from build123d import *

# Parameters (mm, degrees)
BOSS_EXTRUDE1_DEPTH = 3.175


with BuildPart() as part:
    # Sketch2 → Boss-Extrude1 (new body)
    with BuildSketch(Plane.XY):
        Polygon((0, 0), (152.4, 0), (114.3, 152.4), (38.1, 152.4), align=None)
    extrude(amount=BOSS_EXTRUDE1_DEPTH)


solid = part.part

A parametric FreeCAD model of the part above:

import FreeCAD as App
import Part
import Sketcher
Q = App.Units.Quantity

doc = App.newDocument("Part")
params = doc.addObject("Spreadsheet::Sheet", "Params")
for row, (alias, value) in enumerate([
    ("sketch1_width", "6 in"),
    ("sketch1_width2", "3 in"),
    ("pad1_length", "0.125 in"),
], start=1):
    params.set(f"A{row}", alias)
    params.set(f"B{row}", "=" + value)
    params.setAlias(f"B{row}", alias)

body = doc.addObject("PartDesign::Body", "Body")

sketch1 = body.newObject("Sketcher::SketchObject", "Sketch")
sketch1.AttachmentSupport = (doc.getObject("XY_Plane"), [""])
sketch1.MapMode = "FlatFace"
sketch1.addGeometry([
    Part.LineSegment(App.Vector(0, 0, 0), App.Vector(152, 0, 0)),
    Part.LineSegment(App.Vector(152, 0, 0), App.Vector(114, 152, 0)),
    Part.LineSegment(App.Vector(114, 152, 0), App.Vector(38, 152, 0)),
    Part.LineSegment(App.Vector(38, 152, 0), App.Vector(0, 0, 0)),
], False)
sketch1.addConstraint([
    Sketcher.Constraint("Coincident", 0, 2, 1, 1),
    Sketcher.Constraint("Coincident", 1, 2, 2, 1),
    Sketcher.Constraint("Coincident", 2, 2, 3, 1),
    Sketcher.Constraint("Coincident", 3, 2, 0, 1),
    Sketcher.Constraint("Horizontal", 0),
    Sketcher.Constraint("Horizontal", 2),
    Sketcher.Constraint("Coincident", 3, 2, -1, 1),
    Sketcher.Constraint("Equal", 1, 3),
    Sketcher.Constraint("DistanceX", 0, 1, 0, 2, Q("6 in")),
    Sketcher.Constraint("DistanceX", 2, 2, 2, 1, Q("3 in")),
    Sketcher.Constraint("DistanceY", -1, 1, 1, 2, Q("6 in")),
])
sketch1.setExpression("Constraints[8]", "Params.sketch1_width")
sketch1.setExpression("Constraints[9]", "Params.sketch1_width2")
pad1 = body.newObject("PartDesign::Pad", "Pad")
pad1.Profile = sketch1
pad1.setExpression("Length", "Params.pad1_length")

doc.recompute()
